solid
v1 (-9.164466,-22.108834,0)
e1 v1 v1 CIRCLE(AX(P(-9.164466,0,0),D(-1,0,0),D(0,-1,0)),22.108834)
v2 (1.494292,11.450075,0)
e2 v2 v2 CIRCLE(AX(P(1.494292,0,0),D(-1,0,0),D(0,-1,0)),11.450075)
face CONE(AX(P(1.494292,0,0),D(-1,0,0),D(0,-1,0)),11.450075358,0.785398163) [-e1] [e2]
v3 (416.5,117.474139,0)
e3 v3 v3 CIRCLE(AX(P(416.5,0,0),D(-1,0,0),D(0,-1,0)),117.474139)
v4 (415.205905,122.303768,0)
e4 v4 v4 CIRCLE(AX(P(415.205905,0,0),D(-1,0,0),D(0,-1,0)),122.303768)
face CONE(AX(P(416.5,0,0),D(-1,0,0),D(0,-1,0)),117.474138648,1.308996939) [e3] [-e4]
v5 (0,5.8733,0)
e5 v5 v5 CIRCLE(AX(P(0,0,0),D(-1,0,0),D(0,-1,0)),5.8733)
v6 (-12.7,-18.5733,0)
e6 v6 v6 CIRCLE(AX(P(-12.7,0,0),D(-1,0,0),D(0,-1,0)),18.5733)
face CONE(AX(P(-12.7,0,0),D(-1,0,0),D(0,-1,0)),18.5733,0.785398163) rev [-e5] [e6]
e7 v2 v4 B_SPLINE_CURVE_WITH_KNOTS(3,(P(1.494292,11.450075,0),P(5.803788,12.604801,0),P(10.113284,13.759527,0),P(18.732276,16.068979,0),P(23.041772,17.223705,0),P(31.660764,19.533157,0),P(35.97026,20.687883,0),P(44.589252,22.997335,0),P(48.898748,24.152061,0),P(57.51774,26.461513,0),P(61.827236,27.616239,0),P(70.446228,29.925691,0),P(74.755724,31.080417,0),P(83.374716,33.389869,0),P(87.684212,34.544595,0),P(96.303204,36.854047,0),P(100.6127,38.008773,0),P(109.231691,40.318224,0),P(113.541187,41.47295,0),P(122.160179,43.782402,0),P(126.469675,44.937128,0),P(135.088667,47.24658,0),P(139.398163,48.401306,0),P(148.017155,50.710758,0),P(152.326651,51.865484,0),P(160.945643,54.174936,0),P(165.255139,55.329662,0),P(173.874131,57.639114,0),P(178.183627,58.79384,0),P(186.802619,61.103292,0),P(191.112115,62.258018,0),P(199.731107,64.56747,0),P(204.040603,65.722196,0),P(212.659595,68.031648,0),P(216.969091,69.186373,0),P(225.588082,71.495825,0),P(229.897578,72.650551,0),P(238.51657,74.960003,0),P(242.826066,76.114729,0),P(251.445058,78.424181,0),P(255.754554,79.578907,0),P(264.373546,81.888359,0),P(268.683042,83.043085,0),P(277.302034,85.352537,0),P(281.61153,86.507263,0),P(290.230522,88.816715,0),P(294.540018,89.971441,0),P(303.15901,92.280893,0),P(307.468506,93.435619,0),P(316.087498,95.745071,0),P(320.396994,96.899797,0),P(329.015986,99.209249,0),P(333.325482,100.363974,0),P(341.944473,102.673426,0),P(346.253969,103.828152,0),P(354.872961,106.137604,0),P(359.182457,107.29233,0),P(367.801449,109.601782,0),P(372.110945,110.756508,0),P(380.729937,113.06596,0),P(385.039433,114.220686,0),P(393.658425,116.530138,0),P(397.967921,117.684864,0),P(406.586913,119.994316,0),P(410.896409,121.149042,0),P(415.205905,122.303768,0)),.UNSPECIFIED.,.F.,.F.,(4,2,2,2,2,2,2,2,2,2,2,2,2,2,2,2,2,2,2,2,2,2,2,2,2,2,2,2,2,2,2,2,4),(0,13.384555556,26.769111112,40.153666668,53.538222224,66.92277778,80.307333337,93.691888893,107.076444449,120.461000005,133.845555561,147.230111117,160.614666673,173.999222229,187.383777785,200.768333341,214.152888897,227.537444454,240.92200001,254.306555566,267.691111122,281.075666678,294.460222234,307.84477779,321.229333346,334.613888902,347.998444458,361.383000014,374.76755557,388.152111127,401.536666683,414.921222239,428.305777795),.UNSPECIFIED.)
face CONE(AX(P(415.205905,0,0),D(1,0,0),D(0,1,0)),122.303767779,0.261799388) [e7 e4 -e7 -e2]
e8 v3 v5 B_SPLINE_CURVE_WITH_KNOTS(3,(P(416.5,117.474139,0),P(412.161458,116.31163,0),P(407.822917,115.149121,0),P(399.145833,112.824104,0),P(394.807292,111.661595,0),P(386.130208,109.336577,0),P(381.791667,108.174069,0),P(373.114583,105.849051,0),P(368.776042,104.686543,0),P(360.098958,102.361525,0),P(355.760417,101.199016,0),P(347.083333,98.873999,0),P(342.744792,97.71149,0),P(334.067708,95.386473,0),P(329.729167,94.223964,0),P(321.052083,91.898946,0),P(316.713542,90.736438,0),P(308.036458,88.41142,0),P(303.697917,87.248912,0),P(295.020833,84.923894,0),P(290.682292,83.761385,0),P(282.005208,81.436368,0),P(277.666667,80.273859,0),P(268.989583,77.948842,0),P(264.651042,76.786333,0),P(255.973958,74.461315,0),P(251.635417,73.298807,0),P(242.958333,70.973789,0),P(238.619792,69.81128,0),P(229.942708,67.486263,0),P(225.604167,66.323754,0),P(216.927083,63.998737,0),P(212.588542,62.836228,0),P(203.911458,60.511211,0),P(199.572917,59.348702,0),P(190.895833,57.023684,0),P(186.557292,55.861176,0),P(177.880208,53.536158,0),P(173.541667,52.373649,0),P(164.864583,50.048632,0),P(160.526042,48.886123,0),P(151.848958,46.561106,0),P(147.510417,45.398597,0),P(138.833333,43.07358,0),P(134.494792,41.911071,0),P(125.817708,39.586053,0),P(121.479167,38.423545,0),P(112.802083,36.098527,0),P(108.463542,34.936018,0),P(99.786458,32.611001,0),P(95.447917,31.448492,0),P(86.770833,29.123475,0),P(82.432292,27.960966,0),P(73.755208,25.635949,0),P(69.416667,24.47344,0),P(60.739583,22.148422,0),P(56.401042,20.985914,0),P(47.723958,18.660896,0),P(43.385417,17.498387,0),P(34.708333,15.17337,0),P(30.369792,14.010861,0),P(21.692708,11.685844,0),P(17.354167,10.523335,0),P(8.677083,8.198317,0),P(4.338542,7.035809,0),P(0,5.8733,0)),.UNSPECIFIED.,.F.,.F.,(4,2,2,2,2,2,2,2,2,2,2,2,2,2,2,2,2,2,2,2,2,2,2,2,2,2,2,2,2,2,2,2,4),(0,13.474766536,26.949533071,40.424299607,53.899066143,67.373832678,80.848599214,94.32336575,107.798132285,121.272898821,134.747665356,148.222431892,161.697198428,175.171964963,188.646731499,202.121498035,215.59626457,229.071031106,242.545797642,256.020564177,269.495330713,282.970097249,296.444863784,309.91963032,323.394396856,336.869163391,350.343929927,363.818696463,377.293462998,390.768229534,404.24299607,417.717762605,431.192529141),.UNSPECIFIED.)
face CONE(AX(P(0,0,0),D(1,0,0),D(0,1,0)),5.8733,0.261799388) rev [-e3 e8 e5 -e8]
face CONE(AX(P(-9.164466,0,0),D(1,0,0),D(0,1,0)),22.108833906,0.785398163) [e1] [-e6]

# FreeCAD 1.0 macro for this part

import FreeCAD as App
import Part
import Sketcher

V = App.Vector
Q = App.Units.Quantity


def add_polygon(sketch, points):
    """Adds a closed chain of lines whose ends are joined by coincident constraints."""
    first, n = sketch.GeometryCount, len(points)
    for a, b in zip(points, points[1:] + points[:1]):
        sketch.addGeometry(Part.LineSegment(App.Vector(*a, 0), App.Vector(*b, 0)), False)
    for i in range(n):
        sketch.addConstraint(Sketcher.Constraint("Coincident", first + i, 2, first + (i + 1) % n, 1))

doc = App.newDocument("Part")
body = doc.addObject("PartDesign::Body", "Body")

# Sketch on XY plane
sketch1 = doc.addObject("Sketcher::SketchObject", "Sketch")
body.addObject(sketch1)
sketch1.AttachmentSupport = (doc.XY_Plane, [""])
sketch1.MapMode = "FlatFace"
add_polygon(sketch1, [(-12.7, 18.6), (0, 5.9), (416.5, 117.5), (415.2, 122.3), (1.5, 11.5), (-9.2, 22.1)])  # lines 0-5
sketch1.addConstraint([
    Sketcher.Constraint("PointOnObject", 0, 2, -2),
    Sketcher.Constraint("Perpendicular", 1, 2),
    Sketcher.Constraint("Perpendicular", 2, 3),
    Sketcher.Constraint("Parallel", 0, 4),
    Sketcher.Constraint("Perpendicular", 4, 5),
    Sketcher.Constraint("Equal", 2, 5),
    Sketcher.Constraint("Angle", 0, Q("-45 deg")),
    Sketcher.Constraint("Angle", 1, Q("15 deg")),
    Sketcher.Constraint("Distance", 2, Q("5 mm")),
    Sketcher.Constraint("DistanceX", -1, 1, 1, 2, Q("416.5 mm")),
    Sketcher.Constraint("DistanceX", 5, 2, -1, 1, Q("12.7 mm")),
    Sketcher.Constraint("DistanceY", -1, 1, 0, 2, Q("5.8733 mm")),
])
revolution = doc.addObject("PartDesign::Revolution", "Revolution")
body.addObject(revolution)
revolution.Profile = sketch1
revolution.ReferenceAxis = (sketch1, ["H_Axis"])
revolution.Angle = 360

doc.recompute()
